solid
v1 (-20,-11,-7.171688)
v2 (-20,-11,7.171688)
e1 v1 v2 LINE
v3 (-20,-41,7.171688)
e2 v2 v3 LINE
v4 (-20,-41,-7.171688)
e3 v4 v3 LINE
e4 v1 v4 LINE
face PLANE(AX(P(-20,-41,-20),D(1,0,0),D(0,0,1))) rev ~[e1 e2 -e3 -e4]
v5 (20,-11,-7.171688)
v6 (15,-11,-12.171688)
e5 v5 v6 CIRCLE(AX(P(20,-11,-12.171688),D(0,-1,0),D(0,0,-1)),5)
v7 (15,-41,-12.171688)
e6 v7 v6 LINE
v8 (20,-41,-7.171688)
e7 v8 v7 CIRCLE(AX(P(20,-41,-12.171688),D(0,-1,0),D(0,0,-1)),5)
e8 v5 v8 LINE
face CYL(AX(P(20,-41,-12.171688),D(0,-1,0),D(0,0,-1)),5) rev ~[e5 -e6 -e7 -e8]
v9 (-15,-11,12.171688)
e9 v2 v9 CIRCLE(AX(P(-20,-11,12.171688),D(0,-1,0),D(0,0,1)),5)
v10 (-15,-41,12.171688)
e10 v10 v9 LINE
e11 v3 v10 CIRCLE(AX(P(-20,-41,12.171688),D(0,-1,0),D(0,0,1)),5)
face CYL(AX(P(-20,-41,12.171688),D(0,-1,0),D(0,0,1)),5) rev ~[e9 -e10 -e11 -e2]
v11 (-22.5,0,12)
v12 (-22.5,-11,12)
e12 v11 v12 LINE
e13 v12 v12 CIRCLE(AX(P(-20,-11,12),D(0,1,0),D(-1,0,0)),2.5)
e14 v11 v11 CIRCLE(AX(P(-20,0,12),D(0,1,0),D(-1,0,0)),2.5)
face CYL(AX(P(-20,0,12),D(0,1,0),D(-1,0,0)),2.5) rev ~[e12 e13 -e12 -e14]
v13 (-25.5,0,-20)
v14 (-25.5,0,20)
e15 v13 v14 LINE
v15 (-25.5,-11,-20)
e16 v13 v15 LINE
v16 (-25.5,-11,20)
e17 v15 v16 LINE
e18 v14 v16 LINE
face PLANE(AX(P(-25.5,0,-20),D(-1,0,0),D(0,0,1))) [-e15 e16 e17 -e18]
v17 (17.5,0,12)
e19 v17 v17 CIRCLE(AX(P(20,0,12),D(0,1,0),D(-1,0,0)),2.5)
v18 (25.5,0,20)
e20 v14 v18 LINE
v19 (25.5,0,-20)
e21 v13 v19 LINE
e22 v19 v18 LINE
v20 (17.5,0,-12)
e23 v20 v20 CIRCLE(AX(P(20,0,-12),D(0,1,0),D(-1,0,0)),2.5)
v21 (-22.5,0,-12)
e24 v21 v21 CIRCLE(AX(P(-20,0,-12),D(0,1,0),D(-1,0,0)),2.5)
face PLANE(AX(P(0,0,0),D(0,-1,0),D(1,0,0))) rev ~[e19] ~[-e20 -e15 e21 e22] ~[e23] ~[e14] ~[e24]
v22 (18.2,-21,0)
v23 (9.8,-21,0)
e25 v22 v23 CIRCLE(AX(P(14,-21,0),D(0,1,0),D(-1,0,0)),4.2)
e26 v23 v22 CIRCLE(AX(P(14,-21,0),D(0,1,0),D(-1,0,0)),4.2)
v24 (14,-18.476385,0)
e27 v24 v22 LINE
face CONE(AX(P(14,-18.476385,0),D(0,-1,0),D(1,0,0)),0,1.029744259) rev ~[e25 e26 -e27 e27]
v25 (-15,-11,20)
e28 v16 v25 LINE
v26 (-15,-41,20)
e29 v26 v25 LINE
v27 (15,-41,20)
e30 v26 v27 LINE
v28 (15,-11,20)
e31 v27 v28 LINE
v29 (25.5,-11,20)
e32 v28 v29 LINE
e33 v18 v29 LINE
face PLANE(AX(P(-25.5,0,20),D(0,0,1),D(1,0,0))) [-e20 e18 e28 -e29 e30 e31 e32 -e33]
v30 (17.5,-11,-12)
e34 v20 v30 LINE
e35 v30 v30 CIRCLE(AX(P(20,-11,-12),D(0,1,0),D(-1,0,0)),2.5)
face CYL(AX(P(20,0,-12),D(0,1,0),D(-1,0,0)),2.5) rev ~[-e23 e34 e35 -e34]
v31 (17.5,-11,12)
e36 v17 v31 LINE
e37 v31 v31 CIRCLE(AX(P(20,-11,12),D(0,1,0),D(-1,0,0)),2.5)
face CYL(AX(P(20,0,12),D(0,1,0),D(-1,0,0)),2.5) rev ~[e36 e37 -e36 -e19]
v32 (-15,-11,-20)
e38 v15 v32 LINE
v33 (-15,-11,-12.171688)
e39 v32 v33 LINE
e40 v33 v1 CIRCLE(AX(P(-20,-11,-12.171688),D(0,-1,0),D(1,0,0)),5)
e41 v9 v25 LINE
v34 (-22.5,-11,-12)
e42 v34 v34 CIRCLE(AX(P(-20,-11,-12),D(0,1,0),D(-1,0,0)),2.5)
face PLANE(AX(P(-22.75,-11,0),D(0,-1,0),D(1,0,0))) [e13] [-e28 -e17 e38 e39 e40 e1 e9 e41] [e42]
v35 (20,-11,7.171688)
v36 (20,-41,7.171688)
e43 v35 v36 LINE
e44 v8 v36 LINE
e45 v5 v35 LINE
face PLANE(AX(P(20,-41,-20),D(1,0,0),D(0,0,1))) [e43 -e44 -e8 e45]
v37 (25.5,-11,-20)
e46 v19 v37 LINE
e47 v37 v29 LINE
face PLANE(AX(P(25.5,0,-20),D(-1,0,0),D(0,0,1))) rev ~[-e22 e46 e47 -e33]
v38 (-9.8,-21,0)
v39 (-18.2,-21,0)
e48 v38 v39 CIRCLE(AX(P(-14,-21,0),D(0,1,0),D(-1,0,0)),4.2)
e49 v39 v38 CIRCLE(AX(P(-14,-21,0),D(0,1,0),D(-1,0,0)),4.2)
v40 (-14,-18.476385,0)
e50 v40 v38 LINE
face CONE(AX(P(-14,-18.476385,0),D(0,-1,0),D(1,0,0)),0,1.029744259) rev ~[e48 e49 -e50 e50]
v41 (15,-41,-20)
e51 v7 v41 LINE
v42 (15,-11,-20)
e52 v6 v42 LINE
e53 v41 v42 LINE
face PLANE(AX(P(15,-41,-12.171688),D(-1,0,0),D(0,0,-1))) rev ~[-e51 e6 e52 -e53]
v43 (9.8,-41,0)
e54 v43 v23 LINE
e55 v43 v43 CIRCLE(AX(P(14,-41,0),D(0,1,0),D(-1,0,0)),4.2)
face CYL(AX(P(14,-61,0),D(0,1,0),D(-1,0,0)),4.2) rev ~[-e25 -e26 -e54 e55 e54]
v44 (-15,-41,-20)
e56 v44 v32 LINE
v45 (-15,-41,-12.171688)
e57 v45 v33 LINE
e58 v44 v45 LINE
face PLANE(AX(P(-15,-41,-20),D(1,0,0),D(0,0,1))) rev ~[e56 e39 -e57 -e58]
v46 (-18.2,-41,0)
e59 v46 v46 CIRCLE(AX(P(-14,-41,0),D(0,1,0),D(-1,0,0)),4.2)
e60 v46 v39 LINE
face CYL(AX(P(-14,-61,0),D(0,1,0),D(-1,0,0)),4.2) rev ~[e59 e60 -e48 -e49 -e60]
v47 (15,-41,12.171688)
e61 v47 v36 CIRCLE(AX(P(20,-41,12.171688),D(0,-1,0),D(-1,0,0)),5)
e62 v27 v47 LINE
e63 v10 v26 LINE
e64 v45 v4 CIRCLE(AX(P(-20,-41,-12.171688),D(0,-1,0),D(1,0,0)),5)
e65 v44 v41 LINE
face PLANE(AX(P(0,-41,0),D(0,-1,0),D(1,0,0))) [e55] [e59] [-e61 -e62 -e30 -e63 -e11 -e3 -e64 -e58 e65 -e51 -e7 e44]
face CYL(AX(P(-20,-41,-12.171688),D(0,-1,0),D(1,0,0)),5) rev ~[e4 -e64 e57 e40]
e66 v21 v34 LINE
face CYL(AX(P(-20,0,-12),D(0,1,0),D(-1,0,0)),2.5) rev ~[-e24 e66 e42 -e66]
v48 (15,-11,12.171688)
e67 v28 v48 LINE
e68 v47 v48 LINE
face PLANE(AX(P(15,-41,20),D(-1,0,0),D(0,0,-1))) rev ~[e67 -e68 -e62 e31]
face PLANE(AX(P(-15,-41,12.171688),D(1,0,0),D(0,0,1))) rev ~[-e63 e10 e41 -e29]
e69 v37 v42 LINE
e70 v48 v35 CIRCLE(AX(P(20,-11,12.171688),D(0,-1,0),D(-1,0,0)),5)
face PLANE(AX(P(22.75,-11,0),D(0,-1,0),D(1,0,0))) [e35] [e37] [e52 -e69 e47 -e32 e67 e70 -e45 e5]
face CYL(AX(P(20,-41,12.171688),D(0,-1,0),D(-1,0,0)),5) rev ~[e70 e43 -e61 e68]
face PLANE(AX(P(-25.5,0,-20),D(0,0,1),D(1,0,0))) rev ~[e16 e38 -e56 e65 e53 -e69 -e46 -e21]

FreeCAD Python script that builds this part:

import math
import FreeCAD as App
import Part
import Sketcher

doc = App.newDocument("Part")
body = doc.addObject("PartDesign::Body", "Body")

# Sketch on XZ plane
sketch1 = body.newObject("Sketcher::SketchObject", "Sketch")
sketch1.AttachmentSupport = (doc.getObject("XZ_Plane"), [""])
sketch1.MapMode = "FlatFace"
sketch1.addGeometry([
    Part.LineSegment(App.Vector(-26, 20, 0), App.Vector(-26, -20, 0)),
    Part.LineSegment(App.Vector(-26, -20, 0), App.Vector(26, -20, 0)),
    Part.LineSegment(App.Vector(26, -20, 0), App.Vector(26, 20, 0)),
    Part.LineSegment(App.Vector(26, 20, 0), App.Vector(-26, 20, 0)),
], False)
sketch1.addConstraint([
    Sketcher.Constraint("Coincident", 0, 2, 1, 1),
    Sketcher.Constraint("Coincident", 1, 2, 2, 1),
    Sketcher.Constraint("Coincident", 2, 2, 3, 1),
    Sketcher.Constraint("Coincident", 3, 2, 0, 1),
    Sketcher.Constraint("Vertical", 0),
    Sketcher.Constraint("Horizontal", 1),
    Sketcher.Constraint("Vertical", 2),
    Sketcher.Constraint("Horizontal", 3),
    Sketcher.Constraint("Symmetric", 0, 2, 2, 2, -1, 1),
    Sketcher.Constraint("DistanceX", 1, 1, 1, 2, 51.0),
    Sketcher.Constraint("DistanceY", 0, 2, 0, 1, 40.0),
])
pad1 = body.newObject("PartDesign::Pad", "Pad")
pad1.Profile = sketch1
pad1.Length = 41

# Sketch on XZ plane
sketch2 = body.newObject("Sketcher::SketchObject", "Sketch001")
sketch2.AttachmentSupport = (doc.getObject("XZ_Plane"), [""])
sketch2.MapMode = "FlatFace"
sketch2.AttachmentOffset = App.Placement(App.Vector(0, 0, 41), App.Rotation())
sketch2.addGeometry([
    Part.LineSegment(App.Vector(20, 20, 0), App.Vector(20, -20, 0)),  # 0
    Part.LineSegment(App.Vector(20, -20, 0), App.Vector(26, -20, 0)),  # 1
    Part.LineSegment(App.Vector(26, -20, 0), App.Vector(26, 20, 0)),  # 2
    Part.LineSegment(App.Vector(26, 20, 0), App.Vector(20, 20, 0)),  # 3
    Part.LineSegment(App.Vector(-26, 20, 0), App.Vector(-26, -20, 0)),  # 4
    Part.LineSegment(App.Vector(-26, -20, 0), App.Vector(-20, -20, 0)),  # 5
    Part.LineSegment(App.Vector(-20, -20, 0), App.Vector(-20, 20, 0)),  # 6
    Part.LineSegment(App.Vector(-20, 20, 0), App.Vector(-26, 20, 0)),  # 7
], False)
sketch2.addConstraint([
    Sketcher.Constraint("Coincident", 0, 2, 1, 1),
    Sketcher.Constraint("Coincident", 1, 2, 2, 1),
    Sketcher.Constraint("Coincident", 2, 2, 3, 1),
    Sketcher.Constraint("Coincident", 3, 2, 0, 1),
    Sketcher.Constraint("Coincident", 4, 2, 5, 1),
    Sketcher.Constraint("Coincident", 5, 2, 6, 1),
    Sketcher.Constraint("Coincident", 6, 2, 7, 1),
    Sketcher.Constraint("Coincident", 7, 2, 4, 1),
    Sketcher.Constraint("Vertical", 0),
    Sketcher.Constraint("Horizontal", 1),
    Sketcher.Constraint("Vertical", 2),
    Sketcher.Constraint("Horizontal", 3),
    Sketcher.Constraint("Vertical", 4),
    Sketcher.Constraint("Horizontal", 5),
    Sketcher.Constraint("Vertical", 6),
    Sketcher.Constraint("Horizontal", 7),
    Sketcher.Constraint("Symmetric", 2, 2, 4, 2, -1, 1),
    Sketcher.Constraint("Symmetric", 0, 2, 6, 2, -1, 1),
    Sketcher.Constraint("Horizontal", 1, 2, 4, 2),
    Sketcher.Constraint("DistanceY", 0, 2, 0, 1, 40.0),
    Sketcher.Constraint("DistanceX", 1, 1, 1, 2, 5.5),
    Sketcher.Constraint("DistanceX", -1, 1, 0, 2, 20.0),
])
pocket1 = body.newObject("PartDesign::Pocket", "Pocket")
pocket1.Profile = sketch2
pocket1.Length = 30

# Sketch on XZ plane
sketch3 = body.newObject("Sketcher::SketchObject", "Sketch002")
sketch3.AttachmentSupport = (doc.getObject("XZ_Plane"), [""])
sketch3.MapMode = "FlatFace"
sketch3.AttachmentOffset = App.Placement(App.Vector(0, 0, 41), App.Rotation())
sketch3.addGeometry([
    Part.LineSegment(App.Vector(-20, 20, 0), App.Vector(-20, 17.2, 0)),  # 0
    Part.ArcOfCircle(Part.Circle(App.Vector(-20, 12.2, 0), App.Vector(0, 0, 1), 5), math.radians(90), math.radians(360)),  # 1
    Part.LineSegment(App.Vector(-15, 12.2, 0), App.Vector(-15, 20, 0)),  # 2
    Part.LineSegment(App.Vector(-15, 20, 0), App.Vector(-20, 20, 0)),  # 3
    Part.LineSegment(App.Vector(20, 17.2, 0), App.Vector(20, 20, 0)),  # 4
    Part.LineSegment(App.Vector(20, 20, 0), App.Vector(15, 20, 0)),  # 5
    Part.LineSegment(App.Vector(15, 20, 0), App.Vector(15, 12.2, 0)),  # 6
    Part.ArcOfCircle(Part.Circle(App.Vector(20, 12.2, 0), App.Vector(0, 0, 1), 5), math.radians(180), math.radians(450)),  # 7
    Part.LineSegment(App.Vector(20, -20, 0), App.Vector(20, -17.2, 0)),  # 8
    Part.ArcOfCircle(Part.Circle(App.Vector(20, -12.2, 0), App.Vector(0, 0, 1), 5), math.radians(-90), math.radians(180)),  # 9
    Part.LineSegment(App.Vector(15, -12.2, 0), App.Vector(15, -20, 0)),  # 10
    Part.LineSegment(App.Vector(15, -20, 0), App.Vector(20, -20, 0)),  # 11
    Part.ArcOfCircle(Part.Circle(App.Vector(-20, -12.2, 0), App.Vector(0, 0, 1), 5), math.radians(0), math.radians(270)),  # 12
    Part.LineSegment(App.Vector(-20, -17.2, 0), App.Vector(-20, -20, 0)),  # 13
    Part.LineSegment(App.Vector(-20, -20, 0), App.Vector(-15, -20, 0)),  # 14
    Part.LineSegment(App.Vector(-15, -20, 0), App.Vector(-15, -12.2, 0)),  # 15
], False)
sketch3.addConstraint([
    Sketcher.Constraint("Coincident", 0, 2, 1, 1),
    Sketcher.Constraint("Tangent", 1, 2, 2, 1),
    Sketcher.Constraint("Coincident", 2, 2, 3, 1),
    Sketcher.Constraint("Coincident", 3, 2, 0, 1),
    Sketcher.Constraint("Coincident", 4, 2, 5, 1),
    Sketcher.Constraint("Coincident", 5, 2, 6, 1),
    Sketcher.Constraint("Tangent", 6, 2, 7, 1),
    Sketcher.Constraint("Coincident", 7, 2, 4, 1),
    Sketcher.Constraint("Coincident", 8, 2, 9, 1),
    Sketcher.Constraint("Tangent", 9, 2, 10, 1),
    Sketcher.Constraint("Coincident", 10, 2, 11, 1),
    Sketcher.Constraint("Coincident", 11, 2, 8, 1),
    Sketcher.Constraint("Coincident", 12, 2, 13, 1),
    Sketcher.Constraint("Coincident", 13, 2, 14, 1),
    Sketcher.Constraint("Coincident", 14, 2, 15, 1),
    Sketcher.Constraint("Tangent", 15, 2, 12, 1),
    Sketcher.Constraint("Vertical", 0),
    Sketcher.Constraint("Vertical", 2),
    Sketcher.Constraint("Horizontal", 3),
    Sketcher.Constraint("Vertical", 4),
    Sketcher.Constraint("Horizontal", 5),
    Sketcher.Constraint("Vertical", 6),
    Sketcher.Constraint("Vertical", 8),
    Sketcher.Constraint("Vertical", 10),
    Sketcher.Constraint("Horizontal", 11),
    Sketcher.Constraint("Vertical", 13),
    Sketcher.Constraint("Horizontal", 14),
    Sketcher.Constraint("Vertical", 15),
    Sketcher.Constraint("Equal", 1, 7),
    Sketcher.Constraint("Equal", 7, 9),
    Sketcher.Constraint("Equal", 9, 12),
    Sketcher.Constraint("Symmetric", 1, 3, 9, 3, -1, 1),
    Sketcher.Constraint("Symmetric", 7, 3, 12, 3, -1, 1),
    Sketcher.Constraint("Symmetric", 3, 2, 11, 2, -1, 1),
    Sketcher.Constraint("Symmetric", 4, 2, 13, 2, -1, 1),
    Sketcher.Constraint("Symmetric", 1, 3, 7, 3, -2),
    Sketcher.Constraint("Symmetric", 3, 2, 4, 2, -2),
    Sketcher.Constraint("Vertical", 12, 3, 0, 2),
    Sketcher.Constraint("Radius", 1, 5.0),
    Sketcher.Constraint("DistanceX", 1, 3, -1, 1, 20.0),
    Sketcher.Constraint("DistanceY", -1, 1, 2, 2, 20.0),
    Sketcher.Constraint("DistanceY", 0, 2, 0, 1, 2.828312),
])
pocket2 = body.newObject("PartDesign::Pocket", "Pocket001")
pocket2.Profile = sketch3
pocket2.Length = 30

# Sketch on XZ plane
sketch4 = body.newObject("Sketcher::SketchObject", "Sketch003")
sketch4.AttachmentSupport = (doc.getObject("XZ_Plane"), [""])
sketch4.MapMode = "FlatFace"
sketch4.addGeometry([
    Part.Circle(App.Vector(20, 12, 0), App.Vector(0, 0, 1), 2.5),
    Part.Circle(App.Vector(20, -12, 0), App.Vector(0, 0, 1), 2.5),
    Part.Circle(App.Vector(-20, -12, 0), App.Vector(0, 0, 1), 2.5),
    Part.Circle(App.Vector(-20, 12, 0), App.Vector(0, 0, 1), 2.5),
], False)
sketch4.addConstraint([
    Sketcher.Constraint("Equal", 0, 1),
    Sketcher.Constraint("Equal", 1, 2),
    Sketcher.Constraint("Equal", 2, 3),
    Sketcher.Constraint("Symmetric", 0, 3, 2, 3, -1, 1),
    Sketcher.Constraint("Symmetric", 1, 3, 3, 3, -1, 1),
    Sketcher.Constraint("Symmetric", 1, 3, 2, 3, -2),
    Sketcher.Constraint("Diameter", 0, 5.0),
    Sketcher.Constraint("DistanceX", -1, 1, 0, 3, 20.0),
    Sketcher.Constraint("DistanceY", -1, 1, 0, 3, 12.0),
])
pocket3 = body.newObject("PartDesign::Pocket", "Pocket002")
pocket3.Profile = sketch4
pocket3.Type = "ThroughAll"
pocket3.Reversed = True

# Sketch on XZ plane
sketch5 = body.newObject("Sketcher::SketchObject", "Sketch004")
sketch5.AttachmentSupport = (doc.getObject("XZ_Plane"), [""])
sketch5.MapMode = "FlatFace"
sketch5.AttachmentOffset = App.Placement(App.Vector(0, 0, 41), App.Rotation())
sketch5.addGeometry([
    Part.Circle(App.Vector(-14, 0, 0), App.Vector(0, 0, 1), 4.2),
    Part.Circle(App.Vector(14, 0, 0), App.Vector(0, 0, 1), 4.2),
], False)
sketch5.addConstraint([
    Sketcher.Constraint("Equal", 0, 1),
    Sketcher.Constraint("Symmetric", 0, 3, 1, 3, -1, 1),
    Sketcher.Constraint("PointOnObject", 0, 3, -1),
    Sketcher.Constraint("Diameter", 0, 8.4),
    Sketcher.Constraint("DistanceX", 0, 3, -1, 1, 14.0),
])
doc.recompute()
hole = body.newObject("PartDesign::Hole", "Hole")
hole.Profile = sketch5
hole.ThreadType = "None"
hole.Diameter = 8.4
hole.DepthType = "Dimension"
hole.Depth = 20
hole.DrillPoint = "Angled"
hole.DrillPointAngle = 118

doc.recompute()
